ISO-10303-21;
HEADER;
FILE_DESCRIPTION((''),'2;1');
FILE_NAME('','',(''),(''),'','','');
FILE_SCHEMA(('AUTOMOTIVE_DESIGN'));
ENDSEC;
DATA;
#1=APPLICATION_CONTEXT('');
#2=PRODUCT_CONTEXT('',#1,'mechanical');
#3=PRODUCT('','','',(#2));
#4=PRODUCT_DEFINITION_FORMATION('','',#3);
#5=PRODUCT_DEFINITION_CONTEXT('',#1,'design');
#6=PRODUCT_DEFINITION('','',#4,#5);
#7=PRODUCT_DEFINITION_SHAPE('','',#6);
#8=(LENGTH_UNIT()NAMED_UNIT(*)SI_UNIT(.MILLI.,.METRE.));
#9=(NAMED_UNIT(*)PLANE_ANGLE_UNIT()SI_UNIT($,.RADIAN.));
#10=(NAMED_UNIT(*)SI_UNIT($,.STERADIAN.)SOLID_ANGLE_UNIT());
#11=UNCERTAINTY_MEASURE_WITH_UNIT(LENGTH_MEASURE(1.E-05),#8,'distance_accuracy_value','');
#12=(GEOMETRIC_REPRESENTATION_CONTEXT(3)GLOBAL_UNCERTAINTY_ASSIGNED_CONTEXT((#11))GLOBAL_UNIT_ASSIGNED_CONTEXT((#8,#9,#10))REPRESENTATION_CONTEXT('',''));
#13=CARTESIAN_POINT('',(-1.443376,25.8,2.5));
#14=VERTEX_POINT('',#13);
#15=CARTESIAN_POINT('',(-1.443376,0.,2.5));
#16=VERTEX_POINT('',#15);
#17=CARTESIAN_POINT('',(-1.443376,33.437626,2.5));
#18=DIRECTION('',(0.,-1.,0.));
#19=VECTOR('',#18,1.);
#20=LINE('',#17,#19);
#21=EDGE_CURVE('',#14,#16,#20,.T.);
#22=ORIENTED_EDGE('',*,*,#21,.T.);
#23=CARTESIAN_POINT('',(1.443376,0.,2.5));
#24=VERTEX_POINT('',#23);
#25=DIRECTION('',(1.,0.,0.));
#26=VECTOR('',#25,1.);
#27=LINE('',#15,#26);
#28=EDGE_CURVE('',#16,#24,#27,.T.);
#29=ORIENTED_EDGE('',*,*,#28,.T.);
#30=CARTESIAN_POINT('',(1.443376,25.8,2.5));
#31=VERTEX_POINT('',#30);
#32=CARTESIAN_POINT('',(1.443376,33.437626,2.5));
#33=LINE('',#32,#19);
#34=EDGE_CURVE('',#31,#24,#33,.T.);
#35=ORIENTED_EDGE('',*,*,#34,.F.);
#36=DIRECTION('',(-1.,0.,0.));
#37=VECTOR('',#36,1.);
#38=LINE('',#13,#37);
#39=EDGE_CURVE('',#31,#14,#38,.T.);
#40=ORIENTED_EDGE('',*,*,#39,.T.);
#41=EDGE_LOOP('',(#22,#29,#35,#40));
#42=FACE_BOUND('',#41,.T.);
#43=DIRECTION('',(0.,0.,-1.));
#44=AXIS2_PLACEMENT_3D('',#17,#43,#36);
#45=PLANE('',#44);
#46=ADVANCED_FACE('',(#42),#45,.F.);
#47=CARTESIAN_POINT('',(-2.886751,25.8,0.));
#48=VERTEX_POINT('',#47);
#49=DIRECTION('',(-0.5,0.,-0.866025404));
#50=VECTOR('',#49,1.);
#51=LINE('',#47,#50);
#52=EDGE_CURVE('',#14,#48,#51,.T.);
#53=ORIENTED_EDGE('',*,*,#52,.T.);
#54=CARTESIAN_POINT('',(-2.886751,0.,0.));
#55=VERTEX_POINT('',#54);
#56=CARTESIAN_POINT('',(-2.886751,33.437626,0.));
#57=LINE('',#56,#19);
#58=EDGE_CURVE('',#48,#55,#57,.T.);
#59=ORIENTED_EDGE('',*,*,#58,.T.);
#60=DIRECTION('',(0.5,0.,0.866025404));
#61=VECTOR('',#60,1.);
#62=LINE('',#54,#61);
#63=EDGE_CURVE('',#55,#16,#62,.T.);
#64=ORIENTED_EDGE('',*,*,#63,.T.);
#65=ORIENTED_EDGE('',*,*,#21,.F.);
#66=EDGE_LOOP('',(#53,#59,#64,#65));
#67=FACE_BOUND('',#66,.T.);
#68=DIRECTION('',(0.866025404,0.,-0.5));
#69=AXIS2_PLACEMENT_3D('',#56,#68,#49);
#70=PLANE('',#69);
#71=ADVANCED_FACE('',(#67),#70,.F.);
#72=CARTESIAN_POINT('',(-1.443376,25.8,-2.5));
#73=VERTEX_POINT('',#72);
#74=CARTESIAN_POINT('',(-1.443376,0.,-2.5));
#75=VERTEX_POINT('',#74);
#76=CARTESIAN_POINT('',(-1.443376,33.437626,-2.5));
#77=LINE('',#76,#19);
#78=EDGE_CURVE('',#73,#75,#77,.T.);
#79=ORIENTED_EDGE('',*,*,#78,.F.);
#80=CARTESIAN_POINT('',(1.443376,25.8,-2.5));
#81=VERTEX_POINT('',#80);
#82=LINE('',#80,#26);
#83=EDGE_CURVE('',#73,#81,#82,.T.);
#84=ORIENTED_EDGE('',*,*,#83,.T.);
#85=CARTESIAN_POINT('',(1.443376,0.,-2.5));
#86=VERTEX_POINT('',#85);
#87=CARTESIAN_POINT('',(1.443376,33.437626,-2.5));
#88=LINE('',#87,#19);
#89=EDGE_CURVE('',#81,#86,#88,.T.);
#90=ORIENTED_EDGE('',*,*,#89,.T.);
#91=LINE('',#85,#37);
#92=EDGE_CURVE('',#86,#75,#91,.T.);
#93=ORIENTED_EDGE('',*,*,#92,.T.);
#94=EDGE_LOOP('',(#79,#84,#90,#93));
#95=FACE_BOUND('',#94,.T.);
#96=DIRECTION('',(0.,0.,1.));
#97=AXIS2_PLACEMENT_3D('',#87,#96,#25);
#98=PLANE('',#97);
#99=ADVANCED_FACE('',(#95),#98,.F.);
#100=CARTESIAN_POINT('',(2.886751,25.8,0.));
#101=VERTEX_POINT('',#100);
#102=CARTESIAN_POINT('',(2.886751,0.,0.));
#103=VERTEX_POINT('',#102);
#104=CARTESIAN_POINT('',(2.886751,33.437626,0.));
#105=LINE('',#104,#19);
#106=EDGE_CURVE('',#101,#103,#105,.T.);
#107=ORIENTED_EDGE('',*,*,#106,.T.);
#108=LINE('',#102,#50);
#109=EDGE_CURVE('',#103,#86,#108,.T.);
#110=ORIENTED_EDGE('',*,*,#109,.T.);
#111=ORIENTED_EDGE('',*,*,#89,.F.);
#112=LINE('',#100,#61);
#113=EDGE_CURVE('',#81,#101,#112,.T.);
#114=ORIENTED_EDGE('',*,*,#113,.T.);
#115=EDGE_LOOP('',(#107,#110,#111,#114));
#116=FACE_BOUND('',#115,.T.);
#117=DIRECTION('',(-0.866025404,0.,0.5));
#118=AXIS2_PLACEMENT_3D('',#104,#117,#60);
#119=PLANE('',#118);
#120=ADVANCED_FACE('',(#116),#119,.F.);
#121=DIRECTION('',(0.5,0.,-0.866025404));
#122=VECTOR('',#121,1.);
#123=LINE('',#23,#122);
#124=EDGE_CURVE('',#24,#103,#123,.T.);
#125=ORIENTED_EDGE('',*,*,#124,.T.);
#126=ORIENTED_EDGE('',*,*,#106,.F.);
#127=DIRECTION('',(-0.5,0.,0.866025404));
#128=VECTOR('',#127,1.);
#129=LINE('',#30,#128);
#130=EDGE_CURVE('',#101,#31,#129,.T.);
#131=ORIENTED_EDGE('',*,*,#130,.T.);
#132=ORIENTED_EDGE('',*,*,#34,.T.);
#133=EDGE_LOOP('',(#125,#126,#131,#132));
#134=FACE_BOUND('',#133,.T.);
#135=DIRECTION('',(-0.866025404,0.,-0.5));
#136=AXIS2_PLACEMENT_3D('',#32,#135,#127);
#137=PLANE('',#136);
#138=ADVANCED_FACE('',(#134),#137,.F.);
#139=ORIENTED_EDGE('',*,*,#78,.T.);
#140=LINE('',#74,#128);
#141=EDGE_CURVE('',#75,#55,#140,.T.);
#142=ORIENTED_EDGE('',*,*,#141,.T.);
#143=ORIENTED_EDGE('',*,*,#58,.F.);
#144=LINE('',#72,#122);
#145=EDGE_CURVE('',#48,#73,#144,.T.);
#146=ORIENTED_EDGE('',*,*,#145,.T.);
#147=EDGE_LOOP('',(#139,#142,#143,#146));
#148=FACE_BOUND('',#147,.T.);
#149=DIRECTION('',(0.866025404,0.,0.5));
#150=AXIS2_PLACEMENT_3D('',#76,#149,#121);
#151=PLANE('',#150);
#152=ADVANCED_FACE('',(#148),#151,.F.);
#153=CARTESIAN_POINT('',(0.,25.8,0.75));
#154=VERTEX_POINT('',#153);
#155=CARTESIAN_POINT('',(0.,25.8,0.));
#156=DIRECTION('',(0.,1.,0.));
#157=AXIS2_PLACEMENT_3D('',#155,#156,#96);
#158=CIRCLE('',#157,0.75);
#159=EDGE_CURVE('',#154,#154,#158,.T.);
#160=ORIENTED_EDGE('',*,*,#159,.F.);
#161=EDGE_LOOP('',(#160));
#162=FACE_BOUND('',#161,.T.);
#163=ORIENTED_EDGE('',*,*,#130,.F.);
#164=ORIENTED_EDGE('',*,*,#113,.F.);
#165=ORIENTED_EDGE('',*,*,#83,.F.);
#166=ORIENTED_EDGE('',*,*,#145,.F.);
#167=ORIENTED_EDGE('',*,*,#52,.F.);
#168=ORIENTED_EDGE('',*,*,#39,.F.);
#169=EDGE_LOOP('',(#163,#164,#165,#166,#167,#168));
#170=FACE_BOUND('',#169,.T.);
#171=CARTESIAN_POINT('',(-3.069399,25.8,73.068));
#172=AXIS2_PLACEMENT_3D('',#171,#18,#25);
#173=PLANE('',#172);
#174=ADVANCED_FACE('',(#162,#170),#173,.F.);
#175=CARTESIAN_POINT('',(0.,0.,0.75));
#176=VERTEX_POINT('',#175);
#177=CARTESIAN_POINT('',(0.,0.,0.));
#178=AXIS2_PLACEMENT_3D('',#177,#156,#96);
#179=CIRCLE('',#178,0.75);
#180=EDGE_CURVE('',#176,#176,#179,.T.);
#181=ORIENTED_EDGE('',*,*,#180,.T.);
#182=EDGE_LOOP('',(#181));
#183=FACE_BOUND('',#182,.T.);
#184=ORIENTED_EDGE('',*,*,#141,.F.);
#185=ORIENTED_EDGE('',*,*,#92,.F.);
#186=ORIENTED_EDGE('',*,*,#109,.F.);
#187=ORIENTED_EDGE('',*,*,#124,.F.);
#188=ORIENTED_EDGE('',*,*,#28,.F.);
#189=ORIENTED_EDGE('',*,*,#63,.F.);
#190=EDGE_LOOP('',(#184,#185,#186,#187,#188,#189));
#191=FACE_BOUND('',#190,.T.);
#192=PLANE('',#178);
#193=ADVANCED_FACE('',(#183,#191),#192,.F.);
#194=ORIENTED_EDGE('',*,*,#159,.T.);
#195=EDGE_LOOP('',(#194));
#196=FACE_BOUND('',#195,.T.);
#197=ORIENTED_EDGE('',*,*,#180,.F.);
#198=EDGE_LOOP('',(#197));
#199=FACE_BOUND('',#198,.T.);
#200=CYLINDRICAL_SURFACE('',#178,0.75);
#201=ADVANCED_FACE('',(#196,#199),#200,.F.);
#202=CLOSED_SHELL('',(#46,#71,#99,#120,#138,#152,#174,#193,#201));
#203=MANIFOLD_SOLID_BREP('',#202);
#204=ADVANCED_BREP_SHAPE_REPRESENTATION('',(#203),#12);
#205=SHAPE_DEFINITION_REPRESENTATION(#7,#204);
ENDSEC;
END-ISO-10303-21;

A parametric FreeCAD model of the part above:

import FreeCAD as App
import Part
import Sketcher

V = App.Vector
Q = App.Units.Quantity

doc = App.newDocument("Part")
params = doc.addObject("Spreadsheet::Sheet", "Params")
for row, (alias, value) in enumerate([
    ("pad1_length", "25.8 mm"),
    ("sketch2_diameter", "1.5 mm"),
], start=1):
    params.set(f"A{row}", alias)
    params.set(f"B{row}", "=" + value)
    params.setAlias(f"B{row}", alias)

body = doc.addObject("PartDesign::Body", "Body")

# Sketch on XZ plane
sketch1 = doc.addObject("Sketcher::SketchObject", "Sketch")
body.addObject(sketch1)
sketch1.AttachmentSupport = (doc.XZ_Plane, [""])
sketch1.MapMode = "FlatFace"
sketch1.addGeometry(Part.LineSegment(V(2.9, 0, 0), V(1.4, -2.5, 0)), False)
sketch1.addGeometry(Part.LineSegment(V(1.4, -2.5, 0), V(-1.4, -2.5, 0)), False)
sketch1.addGeometry(Part.LineSegment(V(-1.4, -2.5, 0), V(-2.9, 0, 0)), False)
sketch1.addGeometry(Part.LineSegment(V(-2.9, 0, 0), V(-1.4, 2.5, 0)), False)
sketch1.addGeometry(Part.LineSegment(V(-1.4, 2.5, 0), V(1.4, 2.5, 0)), False)
sketch1.addGeometry(Part.LineSegment(V(1.4, 2.5, 0), V(2.9, 0, 0)), False)
sketch1.addConstraint(Sketcher.Constraint("Coincident", 0, 2, 1, 1))
sketch1.addConstraint(Sketcher.Constraint("Coincident", 1, 2, 2, 1))
sketch1.addConstraint(Sketcher.Constraint("Coincident", 2, 2, 3, 1))
sketch1.addConstraint(Sketcher.Constraint("Coincident", 3, 2, 4, 1))
sketch1.addConstraint(Sketcher.Constraint("Coincident", 4, 2, 5, 1))
sketch1.addConstraint(Sketcher.Constraint("Coincident", 5, 2, 0, 1))
sketch1.addConstraint(Sketcher.Constraint("Horizontal", 1))
sketch1.addConstraint(Sketcher.Constraint("Horizontal", 4))
sketch1.addConstraint(Sketcher.Constraint("Symmetric", 0, 2, 3, 2, -1, 1))
sketch1.addConstraint(Sketcher.Constraint("Symmetric", 2, 2, 5, 2, -1, 1))
sketch1.addConstraint(Sketcher.Constraint("PointOnObject", 2, 2, -1))
sketch1.addConstraint(Sketcher.Constraint("Parallel", 2, 5))
sketch1.addConstraint(Sketcher.Constraint("Vertical", 1, 2, 3, 2))
sketch1.addConstraint(Sketcher.Constraint("Angle", 0, Q("-120 deg")))
sketch1.addConstraint(Sketcher.Constraint("DistanceY", 1, 2, 3, 2, 5.0))
sketch1.addConstraint(Sketcher.Constraint("DistanceX", 1, 2, 1, 1, 2.886751))
pad1 = doc.addObject("PartDesign::Pad", "Pad")
body.addObject(pad1)
pad1.Profile = sketch1
pad1.setExpression("Length", "Params.pad1_length")
pad1.Reversed = True

# Sketch on XZ plane
sketch2 = doc.addObject("Sketcher::SketchObject", "Sketch001")
body.addObject(sketch2)
sketch2.AttachmentSupport = (doc.XZ_Plane, [""])
sketch2.MapMode = "FlatFace"
sketch2.AttachmentOffset = App.Placement(V(0, 0, -25.8), App.Rotation())
sketch2.addGeometry(Part.Circle(V(0, 0, 0), V(0, 0, 1), 0.8), False)
sketch2.addConstraint(Sketcher.Constraint("Coincident", 0, 3, -1, 1))
sketch2.addConstraint(Sketcher.Constraint("Diameter", 0, 1.5))
sketch2.setExpression("Constraints[1]", "Params.sketch2_diameter")
pocket1 = doc.addObject("PartDesign::Pocket", "Pocket")
body.addObject(pocket1)
pocket1.Profile = sketch2
pocket1.Type = "ThroughAll"
pocket1.Reversed = True

doc.recompute()
